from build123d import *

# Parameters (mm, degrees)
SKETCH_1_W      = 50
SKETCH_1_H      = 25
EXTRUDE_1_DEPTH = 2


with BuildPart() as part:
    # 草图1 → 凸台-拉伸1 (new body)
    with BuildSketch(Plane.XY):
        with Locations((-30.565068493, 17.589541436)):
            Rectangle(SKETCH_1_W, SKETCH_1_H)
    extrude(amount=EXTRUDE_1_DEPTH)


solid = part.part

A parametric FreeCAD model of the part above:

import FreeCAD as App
import Part
import Sketcher
from FreeCAD import Vector
Q = App.Units.Quantity

doc = App.newDocument("Part")
body = doc.addObject("PartDesign::Body", "Body")

# Sketch on XY plane
sketch1 = body.newObject("Sketcher::SketchObject", "Sketch")
sketch1.AttachmentSupport = (doc.getObject("XY_Plane"), [""])
sketch1.MapMode = "FlatFace"
sketch1.addGeometry(Part.LineSegment(Vector(-55.565068, 30.089541, 0), Vector(-55.565068, 5.089541, 0)), False)
sketch1.addGeometry(Part.LineSegment(Vector(-55.565068, 5.089541, 0), Vector(-5.565068, 5.089541, 0)), False)
sketch1.addGeometry(Part.LineSegment(Vector(-5.565068, 5.089541, 0), Vector(-5.565068, 30.089541, 0)), False)
sketch1.addGeometry(Part.LineSegment(Vector(-5.565068, 30.089541, 0), Vector(-55.565068, 30.089541, 0)), False)
sketch1.addConstraint(Sketcher.Constraint("Coincident", 0, 2, 1, 1))
sketch1.addConstraint(Sketcher.Constraint("Coincident", 1, 2, 2, 1))
sketch1.addConstraint(Sketcher.Constraint("Coincident", 2, 2, 3, 1))
sketch1.addConstraint(Sketcher.Constraint("Coincident", 3, 2, 0, 1))
sketch1.addConstraint(Sketcher.Constraint("Vertical", 0))
sketch1.addConstraint(Sketcher.Constraint("Horizontal", 1))
sketch1.addConstraint(Sketcher.Constraint("Vertical", 2))
sketch1.addConstraint(Sketcher.Constraint("Horizontal", 3))
sketch1.addConstraint(Sketcher.Constraint("DistanceX", 1, 1, 1, 2, Q("50 mm")))
sketch1.addConstraint(Sketcher.Constraint("DistanceY", 0, 2, 0, 1, Q("25 mm")))
sketch1.addConstraint(Sketcher.Constraint("DistanceX", 0, 2, -1, 1, Q("55.565068 mm")))
sketch1.addConstraint(Sketcher.Constraint("DistanceY", -1, 1, 0, 2, Q("5.089541 mm")))
pad1 = body.newObject("PartDesign::Pad", "Pad")
pad1.Profile = sketch1
pad1.Length = 2

doc.recompute()
